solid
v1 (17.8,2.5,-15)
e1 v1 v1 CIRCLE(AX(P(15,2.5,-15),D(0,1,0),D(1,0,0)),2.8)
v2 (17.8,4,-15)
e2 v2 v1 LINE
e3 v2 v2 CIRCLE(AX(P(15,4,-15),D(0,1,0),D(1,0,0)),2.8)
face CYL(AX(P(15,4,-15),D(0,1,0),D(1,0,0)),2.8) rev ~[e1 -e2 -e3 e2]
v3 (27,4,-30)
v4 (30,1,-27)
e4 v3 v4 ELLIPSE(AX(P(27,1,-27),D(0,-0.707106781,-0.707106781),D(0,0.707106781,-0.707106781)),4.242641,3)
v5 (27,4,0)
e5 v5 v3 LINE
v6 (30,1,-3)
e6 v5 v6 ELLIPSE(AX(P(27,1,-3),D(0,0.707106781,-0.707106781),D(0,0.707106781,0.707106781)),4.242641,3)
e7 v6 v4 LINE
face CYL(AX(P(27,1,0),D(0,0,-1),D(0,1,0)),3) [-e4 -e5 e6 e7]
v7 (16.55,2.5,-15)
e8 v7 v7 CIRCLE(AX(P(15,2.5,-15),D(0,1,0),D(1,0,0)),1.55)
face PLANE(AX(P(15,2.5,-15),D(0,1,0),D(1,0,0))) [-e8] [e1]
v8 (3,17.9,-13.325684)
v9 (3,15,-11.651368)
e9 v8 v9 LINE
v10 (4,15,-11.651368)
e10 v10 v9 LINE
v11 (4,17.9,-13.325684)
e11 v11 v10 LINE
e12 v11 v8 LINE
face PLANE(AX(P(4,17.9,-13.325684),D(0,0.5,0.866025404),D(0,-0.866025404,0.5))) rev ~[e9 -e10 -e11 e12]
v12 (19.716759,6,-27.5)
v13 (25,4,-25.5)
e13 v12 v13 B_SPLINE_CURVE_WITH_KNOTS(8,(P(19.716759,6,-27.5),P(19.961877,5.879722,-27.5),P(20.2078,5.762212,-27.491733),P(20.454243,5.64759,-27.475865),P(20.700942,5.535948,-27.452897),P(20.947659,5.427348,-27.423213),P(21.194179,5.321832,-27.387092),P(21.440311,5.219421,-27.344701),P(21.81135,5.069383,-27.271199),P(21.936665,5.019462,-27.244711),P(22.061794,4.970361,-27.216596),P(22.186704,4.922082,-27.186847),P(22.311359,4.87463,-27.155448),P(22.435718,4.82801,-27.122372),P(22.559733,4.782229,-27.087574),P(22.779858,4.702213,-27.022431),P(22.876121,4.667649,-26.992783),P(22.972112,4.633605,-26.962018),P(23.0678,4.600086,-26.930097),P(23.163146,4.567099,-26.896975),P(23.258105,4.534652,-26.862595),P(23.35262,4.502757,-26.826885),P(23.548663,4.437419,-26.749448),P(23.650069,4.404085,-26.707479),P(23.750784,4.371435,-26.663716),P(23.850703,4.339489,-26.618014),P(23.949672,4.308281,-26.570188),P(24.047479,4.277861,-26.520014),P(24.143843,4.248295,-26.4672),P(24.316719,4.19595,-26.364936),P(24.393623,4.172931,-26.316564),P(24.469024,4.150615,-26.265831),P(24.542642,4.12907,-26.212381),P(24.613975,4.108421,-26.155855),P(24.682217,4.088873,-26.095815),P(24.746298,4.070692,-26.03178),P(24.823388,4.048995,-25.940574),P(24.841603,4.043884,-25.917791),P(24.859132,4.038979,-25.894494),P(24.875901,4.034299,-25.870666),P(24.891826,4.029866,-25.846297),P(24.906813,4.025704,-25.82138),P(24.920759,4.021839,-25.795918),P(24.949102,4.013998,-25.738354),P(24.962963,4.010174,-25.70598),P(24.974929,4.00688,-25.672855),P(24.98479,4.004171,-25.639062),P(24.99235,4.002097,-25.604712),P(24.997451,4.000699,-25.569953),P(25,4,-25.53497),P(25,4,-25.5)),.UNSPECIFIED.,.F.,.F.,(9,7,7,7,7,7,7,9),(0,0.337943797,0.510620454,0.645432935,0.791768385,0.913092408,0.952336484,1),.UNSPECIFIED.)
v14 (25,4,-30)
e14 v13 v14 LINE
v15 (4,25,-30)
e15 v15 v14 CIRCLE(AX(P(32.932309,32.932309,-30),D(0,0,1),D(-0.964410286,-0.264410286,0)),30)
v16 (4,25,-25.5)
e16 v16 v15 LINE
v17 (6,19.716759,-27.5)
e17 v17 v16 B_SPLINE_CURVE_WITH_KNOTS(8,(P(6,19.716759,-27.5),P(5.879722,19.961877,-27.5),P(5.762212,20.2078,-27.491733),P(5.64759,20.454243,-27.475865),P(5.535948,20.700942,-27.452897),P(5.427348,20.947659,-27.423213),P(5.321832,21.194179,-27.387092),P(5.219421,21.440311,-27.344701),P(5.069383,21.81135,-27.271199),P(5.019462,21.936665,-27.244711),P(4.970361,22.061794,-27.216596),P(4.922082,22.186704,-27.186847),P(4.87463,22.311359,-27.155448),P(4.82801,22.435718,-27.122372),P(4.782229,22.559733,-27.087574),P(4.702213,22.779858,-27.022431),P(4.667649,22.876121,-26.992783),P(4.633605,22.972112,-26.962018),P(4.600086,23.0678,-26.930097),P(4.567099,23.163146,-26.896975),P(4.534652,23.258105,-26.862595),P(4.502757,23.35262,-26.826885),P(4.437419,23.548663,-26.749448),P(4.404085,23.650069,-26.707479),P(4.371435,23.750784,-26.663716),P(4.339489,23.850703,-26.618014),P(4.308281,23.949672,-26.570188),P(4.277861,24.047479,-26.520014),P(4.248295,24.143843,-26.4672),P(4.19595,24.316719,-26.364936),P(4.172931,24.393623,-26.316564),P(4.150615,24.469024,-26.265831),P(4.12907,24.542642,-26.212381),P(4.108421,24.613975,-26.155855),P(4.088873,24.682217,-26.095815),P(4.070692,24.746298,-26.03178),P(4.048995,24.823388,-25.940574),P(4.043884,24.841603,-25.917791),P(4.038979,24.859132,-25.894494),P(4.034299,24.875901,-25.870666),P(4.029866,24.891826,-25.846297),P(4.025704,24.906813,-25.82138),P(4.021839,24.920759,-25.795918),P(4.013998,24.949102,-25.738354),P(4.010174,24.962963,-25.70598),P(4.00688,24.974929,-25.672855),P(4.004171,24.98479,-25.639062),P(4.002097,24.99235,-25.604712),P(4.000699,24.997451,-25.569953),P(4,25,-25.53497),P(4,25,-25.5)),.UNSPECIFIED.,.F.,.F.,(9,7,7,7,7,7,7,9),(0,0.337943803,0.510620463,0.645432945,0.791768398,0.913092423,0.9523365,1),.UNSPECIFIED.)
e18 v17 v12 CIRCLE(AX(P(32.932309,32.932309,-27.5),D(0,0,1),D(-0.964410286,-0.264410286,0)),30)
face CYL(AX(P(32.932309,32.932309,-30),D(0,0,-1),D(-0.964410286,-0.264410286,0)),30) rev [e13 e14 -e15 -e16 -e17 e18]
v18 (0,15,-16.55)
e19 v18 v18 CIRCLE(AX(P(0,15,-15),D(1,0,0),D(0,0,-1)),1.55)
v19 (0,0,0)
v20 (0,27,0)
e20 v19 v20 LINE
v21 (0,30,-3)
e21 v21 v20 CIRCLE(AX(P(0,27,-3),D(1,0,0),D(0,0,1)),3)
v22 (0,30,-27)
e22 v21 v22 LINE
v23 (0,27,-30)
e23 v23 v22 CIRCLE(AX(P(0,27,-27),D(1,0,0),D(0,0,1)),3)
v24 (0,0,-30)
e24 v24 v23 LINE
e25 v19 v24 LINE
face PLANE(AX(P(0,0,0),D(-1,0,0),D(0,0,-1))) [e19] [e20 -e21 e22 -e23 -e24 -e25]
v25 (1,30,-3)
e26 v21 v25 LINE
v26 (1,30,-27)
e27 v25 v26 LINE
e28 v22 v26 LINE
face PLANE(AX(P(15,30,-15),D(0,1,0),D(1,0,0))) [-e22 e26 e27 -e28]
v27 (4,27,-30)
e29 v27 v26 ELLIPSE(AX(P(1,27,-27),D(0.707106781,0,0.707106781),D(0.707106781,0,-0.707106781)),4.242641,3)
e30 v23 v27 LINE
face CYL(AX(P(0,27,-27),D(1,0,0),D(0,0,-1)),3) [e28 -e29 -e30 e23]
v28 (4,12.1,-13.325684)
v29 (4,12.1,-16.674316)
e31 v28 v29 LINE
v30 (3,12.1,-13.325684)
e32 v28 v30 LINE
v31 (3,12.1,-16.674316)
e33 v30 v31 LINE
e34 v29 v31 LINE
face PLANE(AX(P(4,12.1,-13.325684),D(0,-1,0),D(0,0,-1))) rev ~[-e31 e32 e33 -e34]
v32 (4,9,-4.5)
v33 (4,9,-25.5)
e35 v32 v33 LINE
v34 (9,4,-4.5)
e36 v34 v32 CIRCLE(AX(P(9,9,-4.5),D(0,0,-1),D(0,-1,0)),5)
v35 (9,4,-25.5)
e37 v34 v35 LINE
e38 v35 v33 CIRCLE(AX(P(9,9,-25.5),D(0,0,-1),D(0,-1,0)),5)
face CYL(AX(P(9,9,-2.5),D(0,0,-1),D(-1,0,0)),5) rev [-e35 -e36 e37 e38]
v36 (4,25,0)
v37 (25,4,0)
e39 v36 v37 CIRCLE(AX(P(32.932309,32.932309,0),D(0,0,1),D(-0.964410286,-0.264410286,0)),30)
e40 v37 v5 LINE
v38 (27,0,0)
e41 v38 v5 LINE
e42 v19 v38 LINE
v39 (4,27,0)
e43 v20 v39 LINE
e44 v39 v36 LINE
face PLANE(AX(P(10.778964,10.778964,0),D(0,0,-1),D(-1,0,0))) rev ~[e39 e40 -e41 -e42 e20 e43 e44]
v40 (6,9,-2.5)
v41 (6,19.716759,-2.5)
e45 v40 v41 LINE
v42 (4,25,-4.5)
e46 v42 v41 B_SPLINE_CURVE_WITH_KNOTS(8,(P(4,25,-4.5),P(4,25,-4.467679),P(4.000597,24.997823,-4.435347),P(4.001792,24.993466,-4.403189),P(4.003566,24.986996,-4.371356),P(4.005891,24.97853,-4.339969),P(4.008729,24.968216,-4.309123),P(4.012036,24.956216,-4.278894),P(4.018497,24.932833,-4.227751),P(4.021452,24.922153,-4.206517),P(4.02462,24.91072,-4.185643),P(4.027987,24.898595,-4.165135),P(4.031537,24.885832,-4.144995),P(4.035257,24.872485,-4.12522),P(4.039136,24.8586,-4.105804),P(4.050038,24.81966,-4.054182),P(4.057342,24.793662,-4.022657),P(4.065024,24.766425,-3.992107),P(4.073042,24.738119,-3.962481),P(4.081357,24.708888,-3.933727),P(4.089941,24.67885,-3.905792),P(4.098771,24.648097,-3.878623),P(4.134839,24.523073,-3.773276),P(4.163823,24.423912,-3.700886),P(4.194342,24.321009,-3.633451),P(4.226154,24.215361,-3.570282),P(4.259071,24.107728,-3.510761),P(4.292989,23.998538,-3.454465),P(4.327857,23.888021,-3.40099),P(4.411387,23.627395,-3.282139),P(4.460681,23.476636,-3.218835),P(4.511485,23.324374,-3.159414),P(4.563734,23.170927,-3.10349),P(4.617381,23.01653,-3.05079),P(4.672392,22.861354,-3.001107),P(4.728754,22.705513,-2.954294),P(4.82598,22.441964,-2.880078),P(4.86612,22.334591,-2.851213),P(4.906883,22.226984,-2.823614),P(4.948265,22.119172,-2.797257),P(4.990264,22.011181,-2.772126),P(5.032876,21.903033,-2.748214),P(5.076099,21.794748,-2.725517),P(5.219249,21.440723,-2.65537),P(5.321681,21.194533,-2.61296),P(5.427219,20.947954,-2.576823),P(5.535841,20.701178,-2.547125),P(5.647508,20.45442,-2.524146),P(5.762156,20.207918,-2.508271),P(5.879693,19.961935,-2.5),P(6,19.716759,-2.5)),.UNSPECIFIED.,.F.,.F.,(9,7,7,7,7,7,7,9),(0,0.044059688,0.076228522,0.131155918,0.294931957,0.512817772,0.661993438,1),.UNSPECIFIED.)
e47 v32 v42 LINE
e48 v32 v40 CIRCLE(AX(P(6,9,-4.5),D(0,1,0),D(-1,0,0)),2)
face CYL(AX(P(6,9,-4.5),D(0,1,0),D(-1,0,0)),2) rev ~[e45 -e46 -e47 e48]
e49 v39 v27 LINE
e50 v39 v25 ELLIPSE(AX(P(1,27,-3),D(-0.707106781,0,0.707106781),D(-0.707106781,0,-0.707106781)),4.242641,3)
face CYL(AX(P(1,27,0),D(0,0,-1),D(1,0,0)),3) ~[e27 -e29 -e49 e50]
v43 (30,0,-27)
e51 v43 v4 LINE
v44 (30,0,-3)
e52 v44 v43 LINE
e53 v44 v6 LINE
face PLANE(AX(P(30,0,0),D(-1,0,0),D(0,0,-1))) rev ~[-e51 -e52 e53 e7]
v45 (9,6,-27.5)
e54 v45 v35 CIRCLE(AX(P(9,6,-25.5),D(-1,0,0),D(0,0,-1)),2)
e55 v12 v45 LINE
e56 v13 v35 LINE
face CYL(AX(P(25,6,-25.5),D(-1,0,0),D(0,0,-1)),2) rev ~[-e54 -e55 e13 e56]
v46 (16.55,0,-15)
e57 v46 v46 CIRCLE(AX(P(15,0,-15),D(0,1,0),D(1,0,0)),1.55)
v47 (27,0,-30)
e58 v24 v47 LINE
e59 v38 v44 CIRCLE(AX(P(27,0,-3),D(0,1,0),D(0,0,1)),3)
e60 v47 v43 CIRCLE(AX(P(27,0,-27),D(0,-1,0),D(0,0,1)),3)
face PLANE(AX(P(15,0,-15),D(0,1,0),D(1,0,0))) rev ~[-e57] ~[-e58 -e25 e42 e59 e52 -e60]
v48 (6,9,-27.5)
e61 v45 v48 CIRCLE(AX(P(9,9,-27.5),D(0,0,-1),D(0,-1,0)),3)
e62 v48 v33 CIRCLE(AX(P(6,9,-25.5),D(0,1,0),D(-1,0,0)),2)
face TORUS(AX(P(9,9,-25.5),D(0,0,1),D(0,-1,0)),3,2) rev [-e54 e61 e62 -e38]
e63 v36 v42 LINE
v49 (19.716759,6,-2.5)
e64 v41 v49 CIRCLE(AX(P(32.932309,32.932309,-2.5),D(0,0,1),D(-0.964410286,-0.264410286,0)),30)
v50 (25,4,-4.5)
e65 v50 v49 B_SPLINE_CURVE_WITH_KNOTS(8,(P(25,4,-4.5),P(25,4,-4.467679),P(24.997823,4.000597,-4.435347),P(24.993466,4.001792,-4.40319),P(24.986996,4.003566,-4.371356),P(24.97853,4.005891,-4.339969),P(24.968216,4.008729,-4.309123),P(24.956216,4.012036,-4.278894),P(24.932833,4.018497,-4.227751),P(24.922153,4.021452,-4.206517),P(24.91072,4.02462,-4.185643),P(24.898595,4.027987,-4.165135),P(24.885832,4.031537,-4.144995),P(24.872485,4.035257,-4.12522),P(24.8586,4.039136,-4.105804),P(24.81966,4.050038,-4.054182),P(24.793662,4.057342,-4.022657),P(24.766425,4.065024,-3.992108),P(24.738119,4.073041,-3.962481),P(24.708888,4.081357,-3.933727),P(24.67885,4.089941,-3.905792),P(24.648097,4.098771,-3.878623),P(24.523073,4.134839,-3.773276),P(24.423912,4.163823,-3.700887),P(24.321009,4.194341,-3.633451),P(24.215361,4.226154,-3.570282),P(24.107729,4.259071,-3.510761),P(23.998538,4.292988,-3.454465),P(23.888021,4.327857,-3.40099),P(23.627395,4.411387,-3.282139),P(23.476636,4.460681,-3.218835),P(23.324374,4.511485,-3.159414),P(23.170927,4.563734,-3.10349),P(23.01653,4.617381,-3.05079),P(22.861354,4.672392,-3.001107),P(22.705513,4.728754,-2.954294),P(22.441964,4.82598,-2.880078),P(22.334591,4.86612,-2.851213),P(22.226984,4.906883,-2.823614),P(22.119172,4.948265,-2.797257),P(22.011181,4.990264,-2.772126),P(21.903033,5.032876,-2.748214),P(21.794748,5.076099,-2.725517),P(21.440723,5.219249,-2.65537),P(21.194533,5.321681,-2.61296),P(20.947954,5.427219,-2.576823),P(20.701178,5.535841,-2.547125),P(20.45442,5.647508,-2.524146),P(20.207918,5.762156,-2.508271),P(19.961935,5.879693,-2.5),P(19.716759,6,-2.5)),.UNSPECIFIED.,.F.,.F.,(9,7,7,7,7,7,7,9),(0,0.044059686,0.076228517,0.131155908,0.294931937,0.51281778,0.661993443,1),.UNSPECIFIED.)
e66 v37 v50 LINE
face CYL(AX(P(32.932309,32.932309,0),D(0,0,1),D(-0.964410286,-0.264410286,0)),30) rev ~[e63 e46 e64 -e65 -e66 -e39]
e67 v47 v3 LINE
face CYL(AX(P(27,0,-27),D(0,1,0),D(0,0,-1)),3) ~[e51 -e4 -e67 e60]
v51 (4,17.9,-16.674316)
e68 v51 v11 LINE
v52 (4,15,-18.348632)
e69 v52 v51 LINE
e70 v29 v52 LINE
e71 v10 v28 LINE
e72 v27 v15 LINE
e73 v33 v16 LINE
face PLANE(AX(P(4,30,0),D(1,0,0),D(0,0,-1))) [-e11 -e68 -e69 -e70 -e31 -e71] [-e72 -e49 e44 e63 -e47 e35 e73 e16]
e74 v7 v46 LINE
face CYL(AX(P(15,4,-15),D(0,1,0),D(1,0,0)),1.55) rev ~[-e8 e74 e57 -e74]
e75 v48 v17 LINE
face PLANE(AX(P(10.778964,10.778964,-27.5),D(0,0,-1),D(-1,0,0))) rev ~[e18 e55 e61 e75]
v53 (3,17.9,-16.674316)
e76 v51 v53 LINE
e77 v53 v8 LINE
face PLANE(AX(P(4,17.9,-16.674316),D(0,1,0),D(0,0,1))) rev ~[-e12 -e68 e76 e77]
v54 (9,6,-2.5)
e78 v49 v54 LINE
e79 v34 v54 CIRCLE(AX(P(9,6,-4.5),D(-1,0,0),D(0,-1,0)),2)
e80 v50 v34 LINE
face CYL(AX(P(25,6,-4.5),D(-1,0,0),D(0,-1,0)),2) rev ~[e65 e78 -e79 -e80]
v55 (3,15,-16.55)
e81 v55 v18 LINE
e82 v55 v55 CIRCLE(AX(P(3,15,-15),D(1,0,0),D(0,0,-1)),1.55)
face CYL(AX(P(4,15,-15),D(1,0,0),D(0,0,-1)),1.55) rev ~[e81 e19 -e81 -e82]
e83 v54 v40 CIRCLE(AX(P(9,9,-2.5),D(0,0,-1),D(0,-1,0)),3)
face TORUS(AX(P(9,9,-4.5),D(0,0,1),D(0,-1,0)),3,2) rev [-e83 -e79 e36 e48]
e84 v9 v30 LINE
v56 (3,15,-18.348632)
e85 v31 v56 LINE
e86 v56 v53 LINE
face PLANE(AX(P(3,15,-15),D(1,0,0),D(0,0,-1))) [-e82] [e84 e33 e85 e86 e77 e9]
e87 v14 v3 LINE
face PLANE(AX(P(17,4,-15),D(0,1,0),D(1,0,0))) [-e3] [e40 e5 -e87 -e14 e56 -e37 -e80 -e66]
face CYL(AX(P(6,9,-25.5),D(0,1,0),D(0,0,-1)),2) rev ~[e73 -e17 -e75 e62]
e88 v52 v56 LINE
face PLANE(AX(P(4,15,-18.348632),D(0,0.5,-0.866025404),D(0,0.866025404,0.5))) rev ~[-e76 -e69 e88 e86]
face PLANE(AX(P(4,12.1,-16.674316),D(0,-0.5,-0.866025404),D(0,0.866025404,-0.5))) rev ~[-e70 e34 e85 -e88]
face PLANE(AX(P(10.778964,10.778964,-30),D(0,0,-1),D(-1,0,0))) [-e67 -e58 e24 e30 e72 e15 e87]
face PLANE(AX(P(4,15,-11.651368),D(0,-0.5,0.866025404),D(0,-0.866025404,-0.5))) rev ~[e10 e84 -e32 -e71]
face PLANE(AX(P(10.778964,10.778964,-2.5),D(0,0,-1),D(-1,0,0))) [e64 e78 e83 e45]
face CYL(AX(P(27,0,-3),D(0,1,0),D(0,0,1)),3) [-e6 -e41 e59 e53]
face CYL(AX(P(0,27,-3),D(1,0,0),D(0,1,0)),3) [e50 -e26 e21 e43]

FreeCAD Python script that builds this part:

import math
import FreeCAD as App
import Part
import Sketcher

V = App.Vector
Q = App.Units.Quantity


def edges_at(feature, points):
    """Names of the edges that pass closest to the given points."""
    edges = feature.Shape.Edges
    near = lambda p: min(range(len(edges)), key=lambda i: edges[i].distToShape(Part.Vertex(*p))[0])
    return sorted({f"Edge{near(p) + 1}" for p in points})


def add_polygon(sketch, points):
    """Adds a closed chain of lines whose ends are joined by coincident constraints."""
    first, n = sketch.GeometryCount, len(points)
    for a, b in zip(points, points[1:] + points[:1]):
        sketch.addGeometry(Part.LineSegment(App.Vector(*a, 0), App.Vector(*b, 0)), False)
    for i in range(n):
        sketch.addConstraint(Sketcher.Constraint("Coincident", first + i, 2, first + (i + 1) % n, 1))

doc = App.newDocument("Part")
body = doc.addObject("PartDesign::Body", "Body")

sketch1 = doc.addObject("Sketcher::SketchObject", "Sketch")
body.addObject(sketch1)
sketch1.AttachmentSupport = (doc.XZ_Plane, [""])
sketch1.MapMode = "FlatFace"
add_polygon(sketch1, [(0, -30), (0, 0), (30, 0), (30, -30)])
sketch1.addConstraint(Sketcher.Constraint("Vertical", 0))
sketch1.addConstraint(Sketcher.Constraint("Horizontal", 1))
sketch1.addConstraint(Sketcher.Constraint("Vertical", 2))
sketch1.addConstraint(Sketcher.Constraint("Horizontal", 3))
sketch1.addConstraint(Sketcher.Constraint("Coincident", 0, 2, -1, 1))
sketch1.addConstraint(Sketcher.Constraint("Equal", 3, 0))
sketch1.addConstraint(Sketcher.Constraint("DistanceX", 1, 1, 1, 2, Q("30 mm")))
pad1 = doc.addObject("PartDesign::Pad", "Pad")
body.addObject(pad1)
pad1.Profile = sketch1
pad1.Length = 30
pad1.Reversed = True

sketch2 = doc.addObject("Sketcher::SketchObject", "Sketch001")
body.addObject(sketch2)
sketch2.AttachmentSupport = (doc.XZ_Plane, [""])
sketch2.MapMode = "FlatFace"
sketch2.AttachmentOffset = App.Placement(V(0, 0, -30), App.Rotation())
add_polygon(sketch2, [(4, -30), (4, 0), (30, 0), (30, -30)])
sketch2.addConstraint(Sketcher.Constraint("Vertical", 0))
sketch2.addConstraint(Sketcher.Constraint("Horizontal", 1))
sketch2.addConstraint(Sketcher.Constraint("Vertical", 2))
sketch2.addConstraint(Sketcher.Constraint("Horizontal", 3))
sketch2.addConstraint(Sketcher.Constraint("PointOnObject", 0, 2, -1))
sketch2.addConstraint(Sketcher.Constraint("DistanceX", 1, 1, 1, 2, Q("26 mm")))
sketch2.addConstraint(Sketcher.Constraint("DistanceY", 0, 1, 0, 2, Q("30 mm")))
sketch2.addConstraint(Sketcher.Constraint("DistanceX", -1, 1, 0, 2, Q("4 mm")))
pocket1 = doc.addObject("PartDesign::Pocket", "Pocket")
body.addObject(pocket1)
pocket1.Profile = sketch2
pocket1.Length = 26
pocket1.Reversed = True

sketch3 = doc.addObject("Sketcher::SketchObject", "Sketch002")
body.addObject(sketch3)
sketch3.AttachmentSupport = (doc.YZ_Plane, [""])
sketch3.MapMode = "FlatFace"
sketch3.AttachmentOffset = App.Placement(V(0, 0, 4), App.Rotation())
sketch3.addGeometry(Part.Circle(V(15, -15, 0), V(0, 0, 1), 1.6), False)
sketch3.addConstraint(Sketcher.Constraint("Diameter", 0, Q("3.1 mm")))
sketch3.addConstraint(Sketcher.Constraint("DistanceX", -1, 1, 0, 3, Q("15 mm")))
sketch3.addConstraint(Sketcher.Constraint("DistanceY", 0, 3, -1, 1, Q("15 mm")))
pocket2 = doc.addObject("PartDesign::Pocket", "Pocket001")
body.addObject(pocket2)
pocket2.Profile = sketch3
pocket2.Length = 4

sketch4 = doc.addObject("Sketcher::SketchObject", "Sketch003")
body.addObject(sketch4)
sketch4.AttachmentSupport = (doc.XZ_Plane, [""])
sketch4.MapMode = "FlatFace"
sketch4.AttachmentOffset = App.Placement(V(0, 0, -4), App.Rotation())
sketch4.addGeometry(Part.Circle(V(15, -15, 0), V(0, 0, 1), 1.6), False)
sketch4.addConstraint(Sketcher.Constraint("Diameter", 0, Q("3.1 mm")))
sketch4.addConstraint(Sketcher.Constraint("DistanceX", -1, 1, 0, 3, Q("15 mm")))
sketch4.addConstraint(Sketcher.Constraint("DistanceY", 0, 3, -1, 1, Q("15 mm")))
pocket3 = doc.addObject("PartDesign::Pocket", "Pocket002")
body.addObject(pocket3)
pocket3.Profile = sketch4
pocket3.Length = 4
pocket3.Reversed = True

sketch5 = doc.addObject("Sketcher::SketchObject", "Sketch004")
body.addObject(sketch5)
sketch5.AttachmentSupport = (doc.YZ_Plane, [""])
sketch5.MapMode = "FlatFace"
sketch5.AttachmentOffset = App.Placement(V(0, 0, 4), App.Rotation())
add_polygon(sketch5, [(15, -11.7), (12.1, -13.3), (12.1, -16.7), (15, -18.3), (17.9, -16.7), (17.9, -13.3)])
sketch5.addConstraint(Sketcher.Constraint("Vertical", 1))
sketch5.addConstraint(Sketcher.Constraint("Vertical", 4))
sketch5.addConstraint(Sketcher.Constraint("Parallel", 0, 3))
sketch5.addConstraint(Sketcher.Constraint("Parallel", 2, 5))
sketch5.addConstraint(Sketcher.Constraint("Horizontal", 1, 2, 3, 2))
sketch5.addConstraint(Sketcher.Constraint("Horizontal", 0, 2, 4, 2))
sketch5.addConstraint(Sketcher.Constraint("Vertical", 2, 2, 5, 2))
sketch5.addConstraint(Sketcher.Constraint("Angle", 0, Q("-150 deg")))
sketch5.addConstraint(Sketcher.Constraint("DistanceX", -1, 1, 2, 2, Q("15 mm")))
sketch5.addConstraint(Sketcher.Constraint("DistanceX", -1, 1, 0, 2, Q("12.1 mm")))
sketch5.addConstraint(Sketcher.Constraint("DistanceY", 1, 2, 1, 1, Q("3.348632 mm")))
sketch5.addConstraint(Sketcher.Constraint("DistanceY", 2, 2, -1, 1, Q("18.348632 mm")))
pocket4 = doc.addObject("PartDesign::Pocket", "Pocket003")
body.addObject(pocket4)
pocket4.Profile = sketch5
pocket4.Length = 1

sketch6 = doc.addObject("Sketcher::SketchObject", "Sketch005")
body.addObject(sketch6)
sketch6.AttachmentSupport = (doc.XY_Plane, [""])
sketch6.MapMode = "FlatFace"
sketch6.addGeometry(Part.LineSegment(V(4, 4, 0), V(25, 4, 0)), False)
sketch6.addGeometry(Part.ArcOfCircle(Part.Circle(V(33, 33, 0), V(0, 0, 1), 30), math.radians(-165), math.radians(-105)), False)
sketch6.addGeometry(Part.LineSegment(V(4, 25, 0), V(4, 4, 0)), False)
sketch6.addConstraint(Sketcher.Constraint("Coincident", 0, 2, 1, 2))
sketch6.addConstraint(Sketcher.Constraint("Coincident", 1, 1, 2, 1))
sketch6.addConstraint(Sketcher.Constraint("Coincident", 2, 2, 0, 1))
sketch6.addConstraint(Sketcher.Constraint("Horizontal", 0))
sketch6.addConstraint(Sketcher.Constraint("Vertical", 2))
sketch6.addConstraint(Sketcher.Constraint("Equal", 0, 2))
sketch6.addConstraint(Sketcher.Constraint("Radius", 1, Q("30 mm")))
sketch6.addConstraint(Sketcher.Constraint("DistanceX", 0, 1, 0, 2, Q("21 mm")))
sketch6.addConstraint(Sketcher.Constraint("DistanceX", -1, 1, 0, 2, Q("25 mm")))
sketch6.addConstraint(Sketcher.Constraint("DistanceY", -1, 1, 0, 2, Q("4 mm")))
pad2 = doc.addObject("PartDesign::Pad", "Pad001")
body.addObject(pad2)
pad2.Profile = sketch6
pad2.Length = 2.5
pad2.Reversed = True

sketch7 = doc.addObject("Sketcher::SketchObject", "Sketch006")
body.addObject(sketch7)
sketch7.AttachmentSupport = (doc.XY_Plane, [""])
sketch7.MapMode = "FlatFace"
sketch7.AttachmentOffset = App.Placement(V(0, 0, -30), App.Rotation())
sketch7.addGeometry(Part.LineSegment(V(25, 4, 0), V(4, 4, 0)), False)
sketch7.addGeometry(Part.LineSegment(V(4, 4, 0), V(4, 25, 0)), False)
sketch7.addGeometry(Part.ArcOfCircle(Part.Circle(V(33, 33, 0), V(0, 0, 1), 30), math.radians(-165), math.radians(-105)), False)
sketch7.addConstraint(Sketcher.Constraint("Coincident", 0, 2, 1, 1))
sketch7.addConstraint(Sketcher.Constraint("Coincident", 1, 2, 2, 1))
sketch7.addConstraint(Sketcher.Constraint("Coincident", 2, 2, 0, 1))
sketch7.addConstraint(Sketcher.Constraint("Horizontal", 0))
sketch7.addConstraint(Sketcher.Constraint("Vertical", 1))
sketch7.addConstraint(Sketcher.Constraint("Equal", 0, 1))
sketch7.addConstraint(Sketcher.Constraint("Radius", 2, Q("30 mm")))
sketch7.addConstraint(Sketcher.Constraint("DistanceX", 0, 2, 0, 1, Q("21 mm")))
sketch7.addConstraint(Sketcher.Constraint("DistanceX", -1, 1, 0, 2, Q("4 mm")))
sketch7.addConstraint(Sketcher.Constraint("DistanceY", -1, 1, 0, 2, Q("4 mm")))
pad3 = doc.addObject("PartDesign::Pad", "Pad002")
body.addObject(pad3)
pad3.Profile = sketch7
pad3.Length = 2.5

sketch8 = doc.addObject("Sketcher::SketchObject", "Sketch007")
body.addObject(sketch8)
sketch8.AttachmentSupport = (doc.XZ_Plane, [""])
sketch8.MapMode = "FlatFace"
sketch8.AttachmentOffset = App.Placement(V(0, 0, -4), App.Rotation())
sketch8.addGeometry(Part.Circle(V(15, -15, 0), V(0, 0, 1), 2.8), False)
sketch8.addConstraint(Sketcher.Constraint("Diameter", 0, Q("5.6 mm")))
sketch8.addConstraint(Sketcher.Constraint("DistanceX", -1, 1, 0, 3, Q("15 mm")))
sketch8.addConstraint(Sketcher.Constraint("DistanceY", 0, 3, -1, 1, Q("15 mm")))
pocket5 = doc.addObject("PartDesign::Pocket", "Pocket004")
body.addObject(pocket5)
pocket5.Profile = sketch8
pocket5.Length = 1.5
pocket5.Reversed = True
doc.recompute()

fillet = doc.addObject("PartDesign::Fillet", "Fillet")
body.addObject(fillet)
fillet.Base = (pocket5, edges_at(pocket5, [(4, 4, -15)]))
fillet.Radius = 5
doc.recompute()

fillet2 = doc.addObject("PartDesign::Fillet", "Fillet001")
body.addObject(fillet2)
fillet2.Base = (fillet, edges_at(fillet, [
    (2, 30, -30),
    (30, 2, -30),
    (30, 2, 0),
    (30, 4, -15),
    (4, 30, -15),
    (2, 30, 0),
]))
fillet2.Radius = 3
doc.recompute()

fillet3 = doc.addObject("PartDesign::Fillet", "Fillet002")
body.addObject(fillet3)
fillet3.Base = (fillet2, edges_at(fillet2, [
    (4, 17, -2.5),
    (17, 4, -27.5),
    (17, 4, -2.5),
    (5.464, 5.464, -2.5),
    (4, 17, -27.5),
    (5.464, 5.464, -27.5),
]))
fillet3.Radius = 2

doc.recompute()
